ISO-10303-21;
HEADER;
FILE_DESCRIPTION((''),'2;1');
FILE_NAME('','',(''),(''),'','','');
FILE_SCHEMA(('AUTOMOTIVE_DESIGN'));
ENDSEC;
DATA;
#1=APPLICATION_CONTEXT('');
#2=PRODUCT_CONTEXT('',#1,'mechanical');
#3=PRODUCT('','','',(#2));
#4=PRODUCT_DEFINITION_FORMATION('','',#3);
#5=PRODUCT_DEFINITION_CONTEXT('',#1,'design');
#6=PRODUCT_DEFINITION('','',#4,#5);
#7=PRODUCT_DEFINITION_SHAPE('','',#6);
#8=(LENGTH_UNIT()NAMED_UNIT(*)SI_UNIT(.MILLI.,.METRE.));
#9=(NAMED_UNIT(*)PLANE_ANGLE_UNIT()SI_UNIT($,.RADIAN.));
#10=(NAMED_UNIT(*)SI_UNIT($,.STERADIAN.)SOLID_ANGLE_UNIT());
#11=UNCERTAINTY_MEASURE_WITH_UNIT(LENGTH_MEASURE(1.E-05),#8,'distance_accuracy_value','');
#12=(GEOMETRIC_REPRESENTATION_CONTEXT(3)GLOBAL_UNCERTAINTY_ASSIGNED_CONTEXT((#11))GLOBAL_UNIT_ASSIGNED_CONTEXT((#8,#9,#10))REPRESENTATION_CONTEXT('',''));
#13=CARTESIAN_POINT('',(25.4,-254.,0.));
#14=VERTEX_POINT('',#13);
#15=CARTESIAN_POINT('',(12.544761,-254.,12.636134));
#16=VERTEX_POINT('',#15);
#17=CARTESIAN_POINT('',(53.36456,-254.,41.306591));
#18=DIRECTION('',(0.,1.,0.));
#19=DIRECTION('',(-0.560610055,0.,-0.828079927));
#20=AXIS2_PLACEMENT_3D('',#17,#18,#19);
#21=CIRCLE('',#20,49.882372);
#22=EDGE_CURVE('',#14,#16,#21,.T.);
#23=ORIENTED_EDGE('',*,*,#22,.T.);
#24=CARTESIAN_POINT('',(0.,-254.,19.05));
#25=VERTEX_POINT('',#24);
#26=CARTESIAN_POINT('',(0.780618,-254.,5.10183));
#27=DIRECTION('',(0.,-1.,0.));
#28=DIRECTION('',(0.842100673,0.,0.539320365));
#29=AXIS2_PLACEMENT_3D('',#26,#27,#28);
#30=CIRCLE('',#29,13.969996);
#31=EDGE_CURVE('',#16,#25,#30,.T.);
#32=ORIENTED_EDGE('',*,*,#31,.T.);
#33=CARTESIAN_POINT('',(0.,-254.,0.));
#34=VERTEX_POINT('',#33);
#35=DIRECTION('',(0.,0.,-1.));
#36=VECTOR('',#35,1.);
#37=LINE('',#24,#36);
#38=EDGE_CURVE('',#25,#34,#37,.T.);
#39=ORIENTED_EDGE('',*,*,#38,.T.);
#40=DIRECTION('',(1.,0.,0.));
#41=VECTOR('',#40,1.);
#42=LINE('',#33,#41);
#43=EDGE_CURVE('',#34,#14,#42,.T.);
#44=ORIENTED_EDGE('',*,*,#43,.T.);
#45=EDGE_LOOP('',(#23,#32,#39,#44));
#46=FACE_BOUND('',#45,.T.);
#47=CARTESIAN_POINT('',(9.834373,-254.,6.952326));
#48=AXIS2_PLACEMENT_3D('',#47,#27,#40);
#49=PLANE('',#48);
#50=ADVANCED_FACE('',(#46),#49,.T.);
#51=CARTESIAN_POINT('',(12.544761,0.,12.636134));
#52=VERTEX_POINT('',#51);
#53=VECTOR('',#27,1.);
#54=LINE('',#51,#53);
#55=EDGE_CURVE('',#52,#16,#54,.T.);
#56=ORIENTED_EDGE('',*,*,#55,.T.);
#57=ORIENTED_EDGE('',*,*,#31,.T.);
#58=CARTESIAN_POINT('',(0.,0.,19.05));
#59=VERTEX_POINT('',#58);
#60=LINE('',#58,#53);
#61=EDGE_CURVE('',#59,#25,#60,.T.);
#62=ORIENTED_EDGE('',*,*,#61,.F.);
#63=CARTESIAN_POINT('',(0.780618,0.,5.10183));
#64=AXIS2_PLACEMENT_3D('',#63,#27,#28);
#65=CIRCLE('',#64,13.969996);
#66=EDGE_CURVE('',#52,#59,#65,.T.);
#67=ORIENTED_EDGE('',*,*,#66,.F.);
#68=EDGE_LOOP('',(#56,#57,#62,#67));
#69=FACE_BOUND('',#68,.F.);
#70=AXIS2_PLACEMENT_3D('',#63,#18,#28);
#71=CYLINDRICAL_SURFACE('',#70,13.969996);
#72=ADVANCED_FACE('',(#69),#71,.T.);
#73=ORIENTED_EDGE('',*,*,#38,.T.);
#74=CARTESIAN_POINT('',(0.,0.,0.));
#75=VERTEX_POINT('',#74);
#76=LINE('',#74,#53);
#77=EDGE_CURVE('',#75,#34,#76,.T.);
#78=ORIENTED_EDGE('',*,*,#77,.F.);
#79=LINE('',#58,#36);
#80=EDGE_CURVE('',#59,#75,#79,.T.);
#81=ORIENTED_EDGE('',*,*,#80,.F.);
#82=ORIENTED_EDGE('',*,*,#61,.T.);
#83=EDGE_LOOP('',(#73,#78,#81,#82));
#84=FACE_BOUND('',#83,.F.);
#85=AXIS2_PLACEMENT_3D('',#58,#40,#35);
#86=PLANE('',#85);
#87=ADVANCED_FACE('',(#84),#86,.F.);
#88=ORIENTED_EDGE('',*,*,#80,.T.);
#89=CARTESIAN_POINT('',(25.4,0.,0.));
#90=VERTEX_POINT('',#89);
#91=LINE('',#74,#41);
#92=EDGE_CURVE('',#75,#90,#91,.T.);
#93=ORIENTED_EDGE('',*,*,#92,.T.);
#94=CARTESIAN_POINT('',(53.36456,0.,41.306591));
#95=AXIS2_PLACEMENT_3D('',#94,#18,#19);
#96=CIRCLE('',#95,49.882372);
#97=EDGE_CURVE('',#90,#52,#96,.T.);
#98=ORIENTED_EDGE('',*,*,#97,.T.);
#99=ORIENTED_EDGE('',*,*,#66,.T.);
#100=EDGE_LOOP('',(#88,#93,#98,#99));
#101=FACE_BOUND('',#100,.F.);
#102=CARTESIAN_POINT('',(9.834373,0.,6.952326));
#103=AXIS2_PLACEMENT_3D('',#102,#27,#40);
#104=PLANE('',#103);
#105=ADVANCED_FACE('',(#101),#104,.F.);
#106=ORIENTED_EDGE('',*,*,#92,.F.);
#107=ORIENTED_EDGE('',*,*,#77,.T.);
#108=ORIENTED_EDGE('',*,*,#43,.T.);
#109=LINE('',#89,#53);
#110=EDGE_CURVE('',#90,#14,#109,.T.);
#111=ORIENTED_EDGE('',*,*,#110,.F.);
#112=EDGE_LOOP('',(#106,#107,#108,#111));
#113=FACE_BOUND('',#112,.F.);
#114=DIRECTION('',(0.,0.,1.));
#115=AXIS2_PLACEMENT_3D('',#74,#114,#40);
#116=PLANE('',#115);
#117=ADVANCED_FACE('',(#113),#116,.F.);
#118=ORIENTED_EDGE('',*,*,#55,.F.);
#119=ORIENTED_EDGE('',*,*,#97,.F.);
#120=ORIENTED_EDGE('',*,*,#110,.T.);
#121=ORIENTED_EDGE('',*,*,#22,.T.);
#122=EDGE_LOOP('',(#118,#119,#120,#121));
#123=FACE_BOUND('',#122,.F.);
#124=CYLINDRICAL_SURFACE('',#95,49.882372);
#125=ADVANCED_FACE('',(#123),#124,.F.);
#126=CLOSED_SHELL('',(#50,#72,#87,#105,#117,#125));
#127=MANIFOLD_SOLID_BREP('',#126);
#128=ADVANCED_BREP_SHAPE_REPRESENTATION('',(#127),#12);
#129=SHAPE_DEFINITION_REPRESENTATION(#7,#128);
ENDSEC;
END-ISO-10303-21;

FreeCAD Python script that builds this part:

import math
import FreeCAD as App
import Part
import Sketcher
from FreeCAD import Vector
Q = App.Units.Quantity

doc = App.newDocument("Part")
params = doc.addObject("Spreadsheet::Sheet", "Params")
for row, (alias, value) in enumerate([
    ("sketch1_width", "1 in"),
    ("sketch1_radius", "0.5499999 in"),
    ("sketch1_height", "0.75 in"),
    ("pad1_length", "10 in"),
], start=1):
    params.set(f"A{row}", alias)
    params.set(f"B{row}", "=" + value)
    params.setAlias(f"B{row}", alias)

body = doc.addObject("PartDesign::Body", "Body")

# Sketch on XZ plane
sketch1 = body.newObject("Sketcher::SketchObject", "Sketch")
sketch1.AttachmentSupport = (doc.getObject("XZ_Plane"), [""])
sketch1.MapMode = "FlatFace"
sketch1.addGeometry([
    Part.LineSegment(Vector(0, 19, 0), Vector(0, 0, 0)),
    Part.LineSegment(Vector(0, 0, 0), Vector(25, 0, 0)),
    Part.ArcOfCircle(Part.Circle(Vector(53, 41, 0), Vector(0, 0, 1), 50), math.radians(-145), math.radians(-124)),
    Part.ArcOfCircle(Part.Circle(Vector(1, 5, 0), Vector(0, 0, 1), 14), math.radians(33), math.radians(93)),
], False)
sketch1.addConstraint([
    Sketcher.Constraint("Coincident", 0, 2, 1, 1),
    Sketcher.Constraint("Coincident", 1, 2, 2, 2),
    Sketcher.Constraint("Coincident", 2, 1, 3, 1),
    Sketcher.Constraint("Coincident", 3, 2, 0, 1),
    Sketcher.Constraint("Vertical", 0),
    Sketcher.Constraint("Horizontal", 1),
    Sketcher.Constraint("Coincident", 0, 2, -1, 1),
    Sketcher.Constraint("DistanceX", 1, 1, 1, 2, Q("1 in")),
    Sketcher.Constraint("Radius", 3, Q("0.5499999 in")),
    Sketcher.Constraint("DistanceY", 0, 2, 0, 1, Q("0.75 in")),
    Sketcher.Constraint("Radius", 2, 49.882372),
    Sketcher.Constraint("DistanceX", 2, 1, 2, 3, 40.819799),
    Sketcher.Constraint("DistanceX", -1, 1, 2, 3, 53.36456),
])
sketch1.setExpression("Constraints[7]", "Params.sketch1_width")
sketch1.setExpression("Constraints[8]", "Params.sketch1_radius")
sketch1.setExpression("Constraints[9]", "Params.sketch1_height")
pad1 = body.newObject("PartDesign::Pad", "Pad")
pad1.Profile = sketch1
pad1.setExpression("Length", "Params.pad1_length")

doc.recompute()
